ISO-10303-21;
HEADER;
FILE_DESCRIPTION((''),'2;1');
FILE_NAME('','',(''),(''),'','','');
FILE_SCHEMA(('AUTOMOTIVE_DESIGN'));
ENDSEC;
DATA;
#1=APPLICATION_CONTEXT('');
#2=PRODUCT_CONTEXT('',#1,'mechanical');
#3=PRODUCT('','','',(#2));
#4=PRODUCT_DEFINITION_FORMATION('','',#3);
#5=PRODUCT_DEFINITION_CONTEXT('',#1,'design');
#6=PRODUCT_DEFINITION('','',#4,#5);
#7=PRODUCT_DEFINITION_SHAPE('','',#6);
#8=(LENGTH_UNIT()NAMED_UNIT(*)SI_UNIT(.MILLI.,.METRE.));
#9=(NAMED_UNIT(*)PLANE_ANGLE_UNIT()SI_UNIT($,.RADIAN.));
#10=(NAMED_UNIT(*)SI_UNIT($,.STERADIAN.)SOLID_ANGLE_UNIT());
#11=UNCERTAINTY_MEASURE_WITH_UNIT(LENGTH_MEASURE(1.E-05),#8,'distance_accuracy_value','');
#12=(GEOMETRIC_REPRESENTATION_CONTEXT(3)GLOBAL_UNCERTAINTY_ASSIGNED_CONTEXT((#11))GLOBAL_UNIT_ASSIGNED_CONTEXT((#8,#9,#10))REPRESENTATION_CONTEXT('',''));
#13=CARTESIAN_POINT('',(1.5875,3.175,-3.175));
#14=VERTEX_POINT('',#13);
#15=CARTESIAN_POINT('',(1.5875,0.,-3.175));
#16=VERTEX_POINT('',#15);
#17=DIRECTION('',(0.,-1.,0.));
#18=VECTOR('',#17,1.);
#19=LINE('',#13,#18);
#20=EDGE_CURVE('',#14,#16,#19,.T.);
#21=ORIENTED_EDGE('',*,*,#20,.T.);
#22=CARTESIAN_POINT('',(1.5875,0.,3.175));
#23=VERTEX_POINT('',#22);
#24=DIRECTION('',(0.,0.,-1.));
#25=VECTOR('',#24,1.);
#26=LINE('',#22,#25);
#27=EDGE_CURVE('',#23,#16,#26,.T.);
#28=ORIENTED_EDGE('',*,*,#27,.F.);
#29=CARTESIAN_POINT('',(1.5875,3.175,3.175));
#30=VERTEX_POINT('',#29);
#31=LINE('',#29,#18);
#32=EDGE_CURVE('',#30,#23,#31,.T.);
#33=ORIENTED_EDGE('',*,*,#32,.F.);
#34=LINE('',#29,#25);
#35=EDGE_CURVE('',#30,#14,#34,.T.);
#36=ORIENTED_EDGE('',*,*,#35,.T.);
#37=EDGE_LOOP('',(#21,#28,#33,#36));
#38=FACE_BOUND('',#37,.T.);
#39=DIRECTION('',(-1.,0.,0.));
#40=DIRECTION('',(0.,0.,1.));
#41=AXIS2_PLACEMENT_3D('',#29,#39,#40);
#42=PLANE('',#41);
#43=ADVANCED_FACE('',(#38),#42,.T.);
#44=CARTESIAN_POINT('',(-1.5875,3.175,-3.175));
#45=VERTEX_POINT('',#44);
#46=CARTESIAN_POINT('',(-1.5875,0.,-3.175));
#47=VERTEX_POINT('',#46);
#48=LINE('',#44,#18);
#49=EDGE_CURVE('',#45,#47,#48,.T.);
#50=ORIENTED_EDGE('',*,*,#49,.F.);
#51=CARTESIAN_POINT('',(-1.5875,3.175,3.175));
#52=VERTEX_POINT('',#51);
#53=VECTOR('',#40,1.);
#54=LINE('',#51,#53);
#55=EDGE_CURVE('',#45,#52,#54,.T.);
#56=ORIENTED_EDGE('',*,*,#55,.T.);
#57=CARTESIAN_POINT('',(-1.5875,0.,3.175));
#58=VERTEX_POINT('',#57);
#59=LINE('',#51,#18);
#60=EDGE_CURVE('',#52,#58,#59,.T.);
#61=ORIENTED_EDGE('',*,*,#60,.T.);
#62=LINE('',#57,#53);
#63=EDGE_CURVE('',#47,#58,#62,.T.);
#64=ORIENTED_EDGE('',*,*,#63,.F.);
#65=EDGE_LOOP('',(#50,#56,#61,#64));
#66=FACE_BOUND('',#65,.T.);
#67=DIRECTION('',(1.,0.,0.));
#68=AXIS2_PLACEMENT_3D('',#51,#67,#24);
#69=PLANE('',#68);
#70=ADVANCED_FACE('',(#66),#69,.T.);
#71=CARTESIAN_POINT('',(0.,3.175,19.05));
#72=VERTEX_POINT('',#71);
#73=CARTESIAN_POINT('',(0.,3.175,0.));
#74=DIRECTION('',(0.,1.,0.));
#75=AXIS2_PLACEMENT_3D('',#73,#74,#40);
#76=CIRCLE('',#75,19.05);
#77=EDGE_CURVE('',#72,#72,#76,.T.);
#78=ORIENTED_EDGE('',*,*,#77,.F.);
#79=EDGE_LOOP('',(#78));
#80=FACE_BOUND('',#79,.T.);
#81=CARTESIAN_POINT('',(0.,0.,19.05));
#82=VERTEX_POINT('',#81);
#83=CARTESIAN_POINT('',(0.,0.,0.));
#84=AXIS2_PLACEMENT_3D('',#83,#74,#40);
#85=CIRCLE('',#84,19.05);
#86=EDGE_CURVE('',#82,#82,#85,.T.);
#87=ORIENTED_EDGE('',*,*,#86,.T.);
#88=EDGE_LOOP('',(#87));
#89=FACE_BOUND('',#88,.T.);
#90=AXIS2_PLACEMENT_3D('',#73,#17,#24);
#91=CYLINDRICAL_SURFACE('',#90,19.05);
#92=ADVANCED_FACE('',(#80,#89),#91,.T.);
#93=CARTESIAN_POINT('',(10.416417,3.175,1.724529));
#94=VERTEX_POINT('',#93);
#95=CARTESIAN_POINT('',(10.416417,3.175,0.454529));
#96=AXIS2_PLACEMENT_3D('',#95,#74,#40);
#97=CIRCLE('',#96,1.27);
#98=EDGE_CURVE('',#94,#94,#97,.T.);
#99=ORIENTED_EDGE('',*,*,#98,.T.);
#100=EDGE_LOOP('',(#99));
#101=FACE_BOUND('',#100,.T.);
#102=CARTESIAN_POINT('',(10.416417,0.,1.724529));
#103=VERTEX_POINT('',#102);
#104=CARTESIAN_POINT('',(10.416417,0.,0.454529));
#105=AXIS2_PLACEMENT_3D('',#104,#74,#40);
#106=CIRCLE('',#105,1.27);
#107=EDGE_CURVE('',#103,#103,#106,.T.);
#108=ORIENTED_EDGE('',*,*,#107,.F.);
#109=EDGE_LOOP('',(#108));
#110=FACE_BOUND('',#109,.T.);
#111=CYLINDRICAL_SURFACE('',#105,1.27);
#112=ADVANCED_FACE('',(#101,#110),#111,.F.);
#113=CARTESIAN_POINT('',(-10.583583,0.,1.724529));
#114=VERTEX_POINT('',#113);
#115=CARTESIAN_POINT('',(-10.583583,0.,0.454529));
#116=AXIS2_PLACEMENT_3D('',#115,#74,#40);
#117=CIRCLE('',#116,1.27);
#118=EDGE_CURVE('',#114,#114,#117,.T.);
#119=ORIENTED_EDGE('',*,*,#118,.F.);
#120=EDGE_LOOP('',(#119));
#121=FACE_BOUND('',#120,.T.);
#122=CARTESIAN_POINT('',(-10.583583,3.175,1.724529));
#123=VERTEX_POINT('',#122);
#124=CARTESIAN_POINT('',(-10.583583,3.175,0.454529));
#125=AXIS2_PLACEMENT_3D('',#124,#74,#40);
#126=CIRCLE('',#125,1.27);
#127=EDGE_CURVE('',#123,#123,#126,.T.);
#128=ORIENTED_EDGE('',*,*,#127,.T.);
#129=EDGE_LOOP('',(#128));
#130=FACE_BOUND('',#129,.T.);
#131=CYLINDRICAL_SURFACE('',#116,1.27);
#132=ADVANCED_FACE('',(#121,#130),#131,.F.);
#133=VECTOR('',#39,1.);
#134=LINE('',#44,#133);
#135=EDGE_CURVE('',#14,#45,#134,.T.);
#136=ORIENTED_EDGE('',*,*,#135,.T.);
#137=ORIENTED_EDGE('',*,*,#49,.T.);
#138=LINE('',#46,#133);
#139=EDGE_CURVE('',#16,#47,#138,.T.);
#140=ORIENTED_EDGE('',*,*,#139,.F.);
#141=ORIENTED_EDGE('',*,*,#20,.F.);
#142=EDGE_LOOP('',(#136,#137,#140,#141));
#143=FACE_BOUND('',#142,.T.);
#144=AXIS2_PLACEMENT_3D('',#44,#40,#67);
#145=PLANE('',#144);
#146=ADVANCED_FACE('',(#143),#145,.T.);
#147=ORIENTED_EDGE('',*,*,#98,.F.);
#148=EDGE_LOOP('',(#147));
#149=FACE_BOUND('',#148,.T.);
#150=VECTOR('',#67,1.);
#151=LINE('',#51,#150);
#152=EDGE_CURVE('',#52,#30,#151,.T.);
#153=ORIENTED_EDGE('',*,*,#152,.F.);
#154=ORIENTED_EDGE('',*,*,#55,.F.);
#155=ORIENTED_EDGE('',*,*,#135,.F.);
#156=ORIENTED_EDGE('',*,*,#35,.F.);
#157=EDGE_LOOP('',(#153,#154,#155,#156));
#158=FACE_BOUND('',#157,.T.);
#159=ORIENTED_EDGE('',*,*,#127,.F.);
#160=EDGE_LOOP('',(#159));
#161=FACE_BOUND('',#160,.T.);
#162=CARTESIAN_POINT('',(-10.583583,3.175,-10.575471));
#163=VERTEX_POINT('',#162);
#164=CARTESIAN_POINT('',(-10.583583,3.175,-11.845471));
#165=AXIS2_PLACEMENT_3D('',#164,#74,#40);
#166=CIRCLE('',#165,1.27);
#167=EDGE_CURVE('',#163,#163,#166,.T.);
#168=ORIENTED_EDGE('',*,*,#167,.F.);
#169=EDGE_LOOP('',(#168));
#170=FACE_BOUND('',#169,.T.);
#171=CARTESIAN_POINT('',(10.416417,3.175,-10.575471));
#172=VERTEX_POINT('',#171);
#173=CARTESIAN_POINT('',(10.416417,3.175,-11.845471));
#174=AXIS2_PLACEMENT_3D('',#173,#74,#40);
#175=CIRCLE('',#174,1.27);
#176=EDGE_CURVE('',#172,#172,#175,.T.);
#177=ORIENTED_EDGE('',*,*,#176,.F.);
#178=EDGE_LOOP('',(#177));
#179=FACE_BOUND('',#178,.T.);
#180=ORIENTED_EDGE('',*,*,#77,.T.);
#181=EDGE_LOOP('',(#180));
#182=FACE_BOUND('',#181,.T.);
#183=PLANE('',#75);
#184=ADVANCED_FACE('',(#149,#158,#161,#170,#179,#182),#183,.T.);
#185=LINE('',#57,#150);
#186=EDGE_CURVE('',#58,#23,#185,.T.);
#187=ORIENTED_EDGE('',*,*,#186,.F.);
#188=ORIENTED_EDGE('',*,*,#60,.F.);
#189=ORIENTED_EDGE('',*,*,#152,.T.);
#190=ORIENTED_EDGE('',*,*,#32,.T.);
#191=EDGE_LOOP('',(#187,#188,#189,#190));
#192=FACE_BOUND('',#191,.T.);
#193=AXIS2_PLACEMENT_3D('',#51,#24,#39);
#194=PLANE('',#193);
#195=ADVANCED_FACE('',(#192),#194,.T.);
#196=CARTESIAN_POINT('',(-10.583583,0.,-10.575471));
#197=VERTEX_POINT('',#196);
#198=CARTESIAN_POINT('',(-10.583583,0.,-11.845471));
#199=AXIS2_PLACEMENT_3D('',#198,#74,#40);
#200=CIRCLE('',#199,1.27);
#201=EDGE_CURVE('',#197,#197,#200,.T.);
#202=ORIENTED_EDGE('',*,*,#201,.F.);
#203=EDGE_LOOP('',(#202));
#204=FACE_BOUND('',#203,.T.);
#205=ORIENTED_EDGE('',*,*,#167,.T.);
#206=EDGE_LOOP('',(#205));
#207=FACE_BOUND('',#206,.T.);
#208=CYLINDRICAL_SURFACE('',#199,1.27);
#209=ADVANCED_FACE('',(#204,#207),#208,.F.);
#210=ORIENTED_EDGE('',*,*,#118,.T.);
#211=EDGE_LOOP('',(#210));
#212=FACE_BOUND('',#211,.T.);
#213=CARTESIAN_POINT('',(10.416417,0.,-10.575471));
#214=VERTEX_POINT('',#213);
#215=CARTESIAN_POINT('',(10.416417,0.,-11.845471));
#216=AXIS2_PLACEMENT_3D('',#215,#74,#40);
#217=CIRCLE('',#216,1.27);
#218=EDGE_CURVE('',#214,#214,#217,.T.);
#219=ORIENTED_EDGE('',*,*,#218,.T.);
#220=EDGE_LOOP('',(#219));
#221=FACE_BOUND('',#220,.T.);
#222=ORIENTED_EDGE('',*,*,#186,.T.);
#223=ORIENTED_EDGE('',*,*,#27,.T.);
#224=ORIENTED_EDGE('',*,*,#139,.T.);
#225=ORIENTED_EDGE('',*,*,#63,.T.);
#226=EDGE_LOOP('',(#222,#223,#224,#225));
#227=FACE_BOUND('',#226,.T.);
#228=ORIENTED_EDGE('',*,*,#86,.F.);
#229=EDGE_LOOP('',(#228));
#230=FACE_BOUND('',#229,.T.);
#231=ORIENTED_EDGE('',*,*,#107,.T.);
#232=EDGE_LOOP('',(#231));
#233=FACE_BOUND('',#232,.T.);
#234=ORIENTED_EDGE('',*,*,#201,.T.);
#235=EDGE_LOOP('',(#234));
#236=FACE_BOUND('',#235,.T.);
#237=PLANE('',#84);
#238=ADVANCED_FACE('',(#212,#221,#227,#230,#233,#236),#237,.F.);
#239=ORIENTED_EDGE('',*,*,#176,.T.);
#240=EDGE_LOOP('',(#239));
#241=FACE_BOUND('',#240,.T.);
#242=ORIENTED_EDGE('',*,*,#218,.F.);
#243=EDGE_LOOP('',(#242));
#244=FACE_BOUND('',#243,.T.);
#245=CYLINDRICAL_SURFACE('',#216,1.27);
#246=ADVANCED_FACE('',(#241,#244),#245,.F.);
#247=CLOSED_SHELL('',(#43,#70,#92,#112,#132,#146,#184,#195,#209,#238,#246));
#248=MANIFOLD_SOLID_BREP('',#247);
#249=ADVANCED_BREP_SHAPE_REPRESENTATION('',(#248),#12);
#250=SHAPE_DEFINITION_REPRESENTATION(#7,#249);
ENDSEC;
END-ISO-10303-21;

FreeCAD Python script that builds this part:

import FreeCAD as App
import Part
import Sketcher
from FreeCAD import Vector
Q = App.Units.Quantity


def add_polygon(sketch, points):
    """Adds a closed chain of lines whose ends are joined by coincident constraints."""
    first, n = sketch.GeometryCount, len(points)
    for a, b in zip(points, points[1:] + points[:1]):
        sketch.addGeometry(Part.LineSegment(App.Vector(*a, 0), App.Vector(*b, 0)), False)
    for i in range(n):
        sketch.addConstraint(Sketcher.Constraint("Coincident", first + i, 2, first + (i + 1) % n, 1))

doc = App.newDocument("Part")
body = doc.addObject("PartDesign::Body", "Body")

# Sketch on XZ plane
sketch1 = doc.addObject("Sketcher::SketchObject", "Sketch")
body.addObject(sketch1)
sketch1.AttachmentSupport = (doc.XZ_Plane, [""])
sketch1.MapMode = "FlatFace"
sketch1.addGeometry(Part.Circle(Vector(0, 0, 0), Vector(0, 0, 1), 19.1), False)  # 0
add_polygon(sketch1, [(1.6, 3.2), (-1.6, 3.2), (-1.6, -3.2), (1.6, -3.2)])  # lines 1-4
sketch1.addConstraint([
    Sketcher.Constraint("Horizontal", 1),
    Sketcher.Constraint("Vertical", 2),
    Sketcher.Constraint("Horizontal", 3),
    Sketcher.Constraint("Vertical", 4),
    Sketcher.Constraint("Coincident", 0, 3, -1, 1),
    Sketcher.Constraint("Symmetric", 1, 2, 3, 2, -1, 1),
    Sketcher.Constraint("Diameter", 0, Q("1.5 in")),
    Sketcher.Constraint("DistanceY", 2, 2, 2, 1, Q("0.25 in")),
    Sketcher.Constraint("DistanceX", 1, 2, 1, 1, Q("0.125 in")),
])
pad1 = doc.addObject("PartDesign::Pad", "Pad")
body.addObject(pad1)
pad1.Profile = sketch1
pad1.Length = Q("0.125 in")
pad1.Reversed = True

# Sketch on XZ plane
sketch2 = doc.addObject("Sketcher::SketchObject", "Sketch001")
body.addObject(sketch2)
sketch2.AttachmentSupport = (doc.XZ_Plane, [""])
sketch2.MapMode = "FlatFace"
sketch2.AttachmentOffset = App.Placement(Vector(0, 0, -0.125 * 25.4), App.Rotation())
sketch2.addGeometry([
    Part.Circle(Vector(10.4, 0.5, 0), Vector(0, 0, 1), 1.3),
    Part.Circle(Vector(-10.6, 0.5, 0), Vector(0, 0, 1), 1.3),
    Part.Circle(Vector(-10.6, -11.8, 0), Vector(0, 0, 1), 1.3),
    Part.Circle(Vector(10.4, -11.8, 0), Vector(0, 0, 1), 1.3),
], False)
sketch2.addConstraint([
    Sketcher.Constraint("Equal", 0, 1),
    Sketcher.Constraint("Equal", 1, 2),
    Sketcher.Constraint("Equal", 2, 3),
    Sketcher.Constraint("Horizontal", 0, 3, 1, 3),
    Sketcher.Constraint("Horizontal", 2, 3, 3, 3),
    Sketcher.Constraint("Vertical", 1, 3, 2, 3),
    Sketcher.Constraint("Vertical", 0, 3, 3, 3),
    Sketcher.Constraint("Diameter", 0, Q("0.1 in")),
    Sketcher.Constraint("DistanceX", 1, 3, 0, 3, 21.0),
    Sketcher.Constraint("DistanceY", 2, 3, 1, 3, 12.3),
    Sketcher.Constraint("DistanceY", -1, 1, 0, 3, 0.454529),
    Sketcher.Constraint("DistanceX", -1, 1, 0, 3, 10.416417),
])
pocket1 = doc.addObject("PartDesign::Pocket", "Pocket")
body.addObject(pocket1)
pocket1.Profile = sketch2
pocket1.Type = "ThroughAll"
pocket1.Reversed = True

doc.recompute()
